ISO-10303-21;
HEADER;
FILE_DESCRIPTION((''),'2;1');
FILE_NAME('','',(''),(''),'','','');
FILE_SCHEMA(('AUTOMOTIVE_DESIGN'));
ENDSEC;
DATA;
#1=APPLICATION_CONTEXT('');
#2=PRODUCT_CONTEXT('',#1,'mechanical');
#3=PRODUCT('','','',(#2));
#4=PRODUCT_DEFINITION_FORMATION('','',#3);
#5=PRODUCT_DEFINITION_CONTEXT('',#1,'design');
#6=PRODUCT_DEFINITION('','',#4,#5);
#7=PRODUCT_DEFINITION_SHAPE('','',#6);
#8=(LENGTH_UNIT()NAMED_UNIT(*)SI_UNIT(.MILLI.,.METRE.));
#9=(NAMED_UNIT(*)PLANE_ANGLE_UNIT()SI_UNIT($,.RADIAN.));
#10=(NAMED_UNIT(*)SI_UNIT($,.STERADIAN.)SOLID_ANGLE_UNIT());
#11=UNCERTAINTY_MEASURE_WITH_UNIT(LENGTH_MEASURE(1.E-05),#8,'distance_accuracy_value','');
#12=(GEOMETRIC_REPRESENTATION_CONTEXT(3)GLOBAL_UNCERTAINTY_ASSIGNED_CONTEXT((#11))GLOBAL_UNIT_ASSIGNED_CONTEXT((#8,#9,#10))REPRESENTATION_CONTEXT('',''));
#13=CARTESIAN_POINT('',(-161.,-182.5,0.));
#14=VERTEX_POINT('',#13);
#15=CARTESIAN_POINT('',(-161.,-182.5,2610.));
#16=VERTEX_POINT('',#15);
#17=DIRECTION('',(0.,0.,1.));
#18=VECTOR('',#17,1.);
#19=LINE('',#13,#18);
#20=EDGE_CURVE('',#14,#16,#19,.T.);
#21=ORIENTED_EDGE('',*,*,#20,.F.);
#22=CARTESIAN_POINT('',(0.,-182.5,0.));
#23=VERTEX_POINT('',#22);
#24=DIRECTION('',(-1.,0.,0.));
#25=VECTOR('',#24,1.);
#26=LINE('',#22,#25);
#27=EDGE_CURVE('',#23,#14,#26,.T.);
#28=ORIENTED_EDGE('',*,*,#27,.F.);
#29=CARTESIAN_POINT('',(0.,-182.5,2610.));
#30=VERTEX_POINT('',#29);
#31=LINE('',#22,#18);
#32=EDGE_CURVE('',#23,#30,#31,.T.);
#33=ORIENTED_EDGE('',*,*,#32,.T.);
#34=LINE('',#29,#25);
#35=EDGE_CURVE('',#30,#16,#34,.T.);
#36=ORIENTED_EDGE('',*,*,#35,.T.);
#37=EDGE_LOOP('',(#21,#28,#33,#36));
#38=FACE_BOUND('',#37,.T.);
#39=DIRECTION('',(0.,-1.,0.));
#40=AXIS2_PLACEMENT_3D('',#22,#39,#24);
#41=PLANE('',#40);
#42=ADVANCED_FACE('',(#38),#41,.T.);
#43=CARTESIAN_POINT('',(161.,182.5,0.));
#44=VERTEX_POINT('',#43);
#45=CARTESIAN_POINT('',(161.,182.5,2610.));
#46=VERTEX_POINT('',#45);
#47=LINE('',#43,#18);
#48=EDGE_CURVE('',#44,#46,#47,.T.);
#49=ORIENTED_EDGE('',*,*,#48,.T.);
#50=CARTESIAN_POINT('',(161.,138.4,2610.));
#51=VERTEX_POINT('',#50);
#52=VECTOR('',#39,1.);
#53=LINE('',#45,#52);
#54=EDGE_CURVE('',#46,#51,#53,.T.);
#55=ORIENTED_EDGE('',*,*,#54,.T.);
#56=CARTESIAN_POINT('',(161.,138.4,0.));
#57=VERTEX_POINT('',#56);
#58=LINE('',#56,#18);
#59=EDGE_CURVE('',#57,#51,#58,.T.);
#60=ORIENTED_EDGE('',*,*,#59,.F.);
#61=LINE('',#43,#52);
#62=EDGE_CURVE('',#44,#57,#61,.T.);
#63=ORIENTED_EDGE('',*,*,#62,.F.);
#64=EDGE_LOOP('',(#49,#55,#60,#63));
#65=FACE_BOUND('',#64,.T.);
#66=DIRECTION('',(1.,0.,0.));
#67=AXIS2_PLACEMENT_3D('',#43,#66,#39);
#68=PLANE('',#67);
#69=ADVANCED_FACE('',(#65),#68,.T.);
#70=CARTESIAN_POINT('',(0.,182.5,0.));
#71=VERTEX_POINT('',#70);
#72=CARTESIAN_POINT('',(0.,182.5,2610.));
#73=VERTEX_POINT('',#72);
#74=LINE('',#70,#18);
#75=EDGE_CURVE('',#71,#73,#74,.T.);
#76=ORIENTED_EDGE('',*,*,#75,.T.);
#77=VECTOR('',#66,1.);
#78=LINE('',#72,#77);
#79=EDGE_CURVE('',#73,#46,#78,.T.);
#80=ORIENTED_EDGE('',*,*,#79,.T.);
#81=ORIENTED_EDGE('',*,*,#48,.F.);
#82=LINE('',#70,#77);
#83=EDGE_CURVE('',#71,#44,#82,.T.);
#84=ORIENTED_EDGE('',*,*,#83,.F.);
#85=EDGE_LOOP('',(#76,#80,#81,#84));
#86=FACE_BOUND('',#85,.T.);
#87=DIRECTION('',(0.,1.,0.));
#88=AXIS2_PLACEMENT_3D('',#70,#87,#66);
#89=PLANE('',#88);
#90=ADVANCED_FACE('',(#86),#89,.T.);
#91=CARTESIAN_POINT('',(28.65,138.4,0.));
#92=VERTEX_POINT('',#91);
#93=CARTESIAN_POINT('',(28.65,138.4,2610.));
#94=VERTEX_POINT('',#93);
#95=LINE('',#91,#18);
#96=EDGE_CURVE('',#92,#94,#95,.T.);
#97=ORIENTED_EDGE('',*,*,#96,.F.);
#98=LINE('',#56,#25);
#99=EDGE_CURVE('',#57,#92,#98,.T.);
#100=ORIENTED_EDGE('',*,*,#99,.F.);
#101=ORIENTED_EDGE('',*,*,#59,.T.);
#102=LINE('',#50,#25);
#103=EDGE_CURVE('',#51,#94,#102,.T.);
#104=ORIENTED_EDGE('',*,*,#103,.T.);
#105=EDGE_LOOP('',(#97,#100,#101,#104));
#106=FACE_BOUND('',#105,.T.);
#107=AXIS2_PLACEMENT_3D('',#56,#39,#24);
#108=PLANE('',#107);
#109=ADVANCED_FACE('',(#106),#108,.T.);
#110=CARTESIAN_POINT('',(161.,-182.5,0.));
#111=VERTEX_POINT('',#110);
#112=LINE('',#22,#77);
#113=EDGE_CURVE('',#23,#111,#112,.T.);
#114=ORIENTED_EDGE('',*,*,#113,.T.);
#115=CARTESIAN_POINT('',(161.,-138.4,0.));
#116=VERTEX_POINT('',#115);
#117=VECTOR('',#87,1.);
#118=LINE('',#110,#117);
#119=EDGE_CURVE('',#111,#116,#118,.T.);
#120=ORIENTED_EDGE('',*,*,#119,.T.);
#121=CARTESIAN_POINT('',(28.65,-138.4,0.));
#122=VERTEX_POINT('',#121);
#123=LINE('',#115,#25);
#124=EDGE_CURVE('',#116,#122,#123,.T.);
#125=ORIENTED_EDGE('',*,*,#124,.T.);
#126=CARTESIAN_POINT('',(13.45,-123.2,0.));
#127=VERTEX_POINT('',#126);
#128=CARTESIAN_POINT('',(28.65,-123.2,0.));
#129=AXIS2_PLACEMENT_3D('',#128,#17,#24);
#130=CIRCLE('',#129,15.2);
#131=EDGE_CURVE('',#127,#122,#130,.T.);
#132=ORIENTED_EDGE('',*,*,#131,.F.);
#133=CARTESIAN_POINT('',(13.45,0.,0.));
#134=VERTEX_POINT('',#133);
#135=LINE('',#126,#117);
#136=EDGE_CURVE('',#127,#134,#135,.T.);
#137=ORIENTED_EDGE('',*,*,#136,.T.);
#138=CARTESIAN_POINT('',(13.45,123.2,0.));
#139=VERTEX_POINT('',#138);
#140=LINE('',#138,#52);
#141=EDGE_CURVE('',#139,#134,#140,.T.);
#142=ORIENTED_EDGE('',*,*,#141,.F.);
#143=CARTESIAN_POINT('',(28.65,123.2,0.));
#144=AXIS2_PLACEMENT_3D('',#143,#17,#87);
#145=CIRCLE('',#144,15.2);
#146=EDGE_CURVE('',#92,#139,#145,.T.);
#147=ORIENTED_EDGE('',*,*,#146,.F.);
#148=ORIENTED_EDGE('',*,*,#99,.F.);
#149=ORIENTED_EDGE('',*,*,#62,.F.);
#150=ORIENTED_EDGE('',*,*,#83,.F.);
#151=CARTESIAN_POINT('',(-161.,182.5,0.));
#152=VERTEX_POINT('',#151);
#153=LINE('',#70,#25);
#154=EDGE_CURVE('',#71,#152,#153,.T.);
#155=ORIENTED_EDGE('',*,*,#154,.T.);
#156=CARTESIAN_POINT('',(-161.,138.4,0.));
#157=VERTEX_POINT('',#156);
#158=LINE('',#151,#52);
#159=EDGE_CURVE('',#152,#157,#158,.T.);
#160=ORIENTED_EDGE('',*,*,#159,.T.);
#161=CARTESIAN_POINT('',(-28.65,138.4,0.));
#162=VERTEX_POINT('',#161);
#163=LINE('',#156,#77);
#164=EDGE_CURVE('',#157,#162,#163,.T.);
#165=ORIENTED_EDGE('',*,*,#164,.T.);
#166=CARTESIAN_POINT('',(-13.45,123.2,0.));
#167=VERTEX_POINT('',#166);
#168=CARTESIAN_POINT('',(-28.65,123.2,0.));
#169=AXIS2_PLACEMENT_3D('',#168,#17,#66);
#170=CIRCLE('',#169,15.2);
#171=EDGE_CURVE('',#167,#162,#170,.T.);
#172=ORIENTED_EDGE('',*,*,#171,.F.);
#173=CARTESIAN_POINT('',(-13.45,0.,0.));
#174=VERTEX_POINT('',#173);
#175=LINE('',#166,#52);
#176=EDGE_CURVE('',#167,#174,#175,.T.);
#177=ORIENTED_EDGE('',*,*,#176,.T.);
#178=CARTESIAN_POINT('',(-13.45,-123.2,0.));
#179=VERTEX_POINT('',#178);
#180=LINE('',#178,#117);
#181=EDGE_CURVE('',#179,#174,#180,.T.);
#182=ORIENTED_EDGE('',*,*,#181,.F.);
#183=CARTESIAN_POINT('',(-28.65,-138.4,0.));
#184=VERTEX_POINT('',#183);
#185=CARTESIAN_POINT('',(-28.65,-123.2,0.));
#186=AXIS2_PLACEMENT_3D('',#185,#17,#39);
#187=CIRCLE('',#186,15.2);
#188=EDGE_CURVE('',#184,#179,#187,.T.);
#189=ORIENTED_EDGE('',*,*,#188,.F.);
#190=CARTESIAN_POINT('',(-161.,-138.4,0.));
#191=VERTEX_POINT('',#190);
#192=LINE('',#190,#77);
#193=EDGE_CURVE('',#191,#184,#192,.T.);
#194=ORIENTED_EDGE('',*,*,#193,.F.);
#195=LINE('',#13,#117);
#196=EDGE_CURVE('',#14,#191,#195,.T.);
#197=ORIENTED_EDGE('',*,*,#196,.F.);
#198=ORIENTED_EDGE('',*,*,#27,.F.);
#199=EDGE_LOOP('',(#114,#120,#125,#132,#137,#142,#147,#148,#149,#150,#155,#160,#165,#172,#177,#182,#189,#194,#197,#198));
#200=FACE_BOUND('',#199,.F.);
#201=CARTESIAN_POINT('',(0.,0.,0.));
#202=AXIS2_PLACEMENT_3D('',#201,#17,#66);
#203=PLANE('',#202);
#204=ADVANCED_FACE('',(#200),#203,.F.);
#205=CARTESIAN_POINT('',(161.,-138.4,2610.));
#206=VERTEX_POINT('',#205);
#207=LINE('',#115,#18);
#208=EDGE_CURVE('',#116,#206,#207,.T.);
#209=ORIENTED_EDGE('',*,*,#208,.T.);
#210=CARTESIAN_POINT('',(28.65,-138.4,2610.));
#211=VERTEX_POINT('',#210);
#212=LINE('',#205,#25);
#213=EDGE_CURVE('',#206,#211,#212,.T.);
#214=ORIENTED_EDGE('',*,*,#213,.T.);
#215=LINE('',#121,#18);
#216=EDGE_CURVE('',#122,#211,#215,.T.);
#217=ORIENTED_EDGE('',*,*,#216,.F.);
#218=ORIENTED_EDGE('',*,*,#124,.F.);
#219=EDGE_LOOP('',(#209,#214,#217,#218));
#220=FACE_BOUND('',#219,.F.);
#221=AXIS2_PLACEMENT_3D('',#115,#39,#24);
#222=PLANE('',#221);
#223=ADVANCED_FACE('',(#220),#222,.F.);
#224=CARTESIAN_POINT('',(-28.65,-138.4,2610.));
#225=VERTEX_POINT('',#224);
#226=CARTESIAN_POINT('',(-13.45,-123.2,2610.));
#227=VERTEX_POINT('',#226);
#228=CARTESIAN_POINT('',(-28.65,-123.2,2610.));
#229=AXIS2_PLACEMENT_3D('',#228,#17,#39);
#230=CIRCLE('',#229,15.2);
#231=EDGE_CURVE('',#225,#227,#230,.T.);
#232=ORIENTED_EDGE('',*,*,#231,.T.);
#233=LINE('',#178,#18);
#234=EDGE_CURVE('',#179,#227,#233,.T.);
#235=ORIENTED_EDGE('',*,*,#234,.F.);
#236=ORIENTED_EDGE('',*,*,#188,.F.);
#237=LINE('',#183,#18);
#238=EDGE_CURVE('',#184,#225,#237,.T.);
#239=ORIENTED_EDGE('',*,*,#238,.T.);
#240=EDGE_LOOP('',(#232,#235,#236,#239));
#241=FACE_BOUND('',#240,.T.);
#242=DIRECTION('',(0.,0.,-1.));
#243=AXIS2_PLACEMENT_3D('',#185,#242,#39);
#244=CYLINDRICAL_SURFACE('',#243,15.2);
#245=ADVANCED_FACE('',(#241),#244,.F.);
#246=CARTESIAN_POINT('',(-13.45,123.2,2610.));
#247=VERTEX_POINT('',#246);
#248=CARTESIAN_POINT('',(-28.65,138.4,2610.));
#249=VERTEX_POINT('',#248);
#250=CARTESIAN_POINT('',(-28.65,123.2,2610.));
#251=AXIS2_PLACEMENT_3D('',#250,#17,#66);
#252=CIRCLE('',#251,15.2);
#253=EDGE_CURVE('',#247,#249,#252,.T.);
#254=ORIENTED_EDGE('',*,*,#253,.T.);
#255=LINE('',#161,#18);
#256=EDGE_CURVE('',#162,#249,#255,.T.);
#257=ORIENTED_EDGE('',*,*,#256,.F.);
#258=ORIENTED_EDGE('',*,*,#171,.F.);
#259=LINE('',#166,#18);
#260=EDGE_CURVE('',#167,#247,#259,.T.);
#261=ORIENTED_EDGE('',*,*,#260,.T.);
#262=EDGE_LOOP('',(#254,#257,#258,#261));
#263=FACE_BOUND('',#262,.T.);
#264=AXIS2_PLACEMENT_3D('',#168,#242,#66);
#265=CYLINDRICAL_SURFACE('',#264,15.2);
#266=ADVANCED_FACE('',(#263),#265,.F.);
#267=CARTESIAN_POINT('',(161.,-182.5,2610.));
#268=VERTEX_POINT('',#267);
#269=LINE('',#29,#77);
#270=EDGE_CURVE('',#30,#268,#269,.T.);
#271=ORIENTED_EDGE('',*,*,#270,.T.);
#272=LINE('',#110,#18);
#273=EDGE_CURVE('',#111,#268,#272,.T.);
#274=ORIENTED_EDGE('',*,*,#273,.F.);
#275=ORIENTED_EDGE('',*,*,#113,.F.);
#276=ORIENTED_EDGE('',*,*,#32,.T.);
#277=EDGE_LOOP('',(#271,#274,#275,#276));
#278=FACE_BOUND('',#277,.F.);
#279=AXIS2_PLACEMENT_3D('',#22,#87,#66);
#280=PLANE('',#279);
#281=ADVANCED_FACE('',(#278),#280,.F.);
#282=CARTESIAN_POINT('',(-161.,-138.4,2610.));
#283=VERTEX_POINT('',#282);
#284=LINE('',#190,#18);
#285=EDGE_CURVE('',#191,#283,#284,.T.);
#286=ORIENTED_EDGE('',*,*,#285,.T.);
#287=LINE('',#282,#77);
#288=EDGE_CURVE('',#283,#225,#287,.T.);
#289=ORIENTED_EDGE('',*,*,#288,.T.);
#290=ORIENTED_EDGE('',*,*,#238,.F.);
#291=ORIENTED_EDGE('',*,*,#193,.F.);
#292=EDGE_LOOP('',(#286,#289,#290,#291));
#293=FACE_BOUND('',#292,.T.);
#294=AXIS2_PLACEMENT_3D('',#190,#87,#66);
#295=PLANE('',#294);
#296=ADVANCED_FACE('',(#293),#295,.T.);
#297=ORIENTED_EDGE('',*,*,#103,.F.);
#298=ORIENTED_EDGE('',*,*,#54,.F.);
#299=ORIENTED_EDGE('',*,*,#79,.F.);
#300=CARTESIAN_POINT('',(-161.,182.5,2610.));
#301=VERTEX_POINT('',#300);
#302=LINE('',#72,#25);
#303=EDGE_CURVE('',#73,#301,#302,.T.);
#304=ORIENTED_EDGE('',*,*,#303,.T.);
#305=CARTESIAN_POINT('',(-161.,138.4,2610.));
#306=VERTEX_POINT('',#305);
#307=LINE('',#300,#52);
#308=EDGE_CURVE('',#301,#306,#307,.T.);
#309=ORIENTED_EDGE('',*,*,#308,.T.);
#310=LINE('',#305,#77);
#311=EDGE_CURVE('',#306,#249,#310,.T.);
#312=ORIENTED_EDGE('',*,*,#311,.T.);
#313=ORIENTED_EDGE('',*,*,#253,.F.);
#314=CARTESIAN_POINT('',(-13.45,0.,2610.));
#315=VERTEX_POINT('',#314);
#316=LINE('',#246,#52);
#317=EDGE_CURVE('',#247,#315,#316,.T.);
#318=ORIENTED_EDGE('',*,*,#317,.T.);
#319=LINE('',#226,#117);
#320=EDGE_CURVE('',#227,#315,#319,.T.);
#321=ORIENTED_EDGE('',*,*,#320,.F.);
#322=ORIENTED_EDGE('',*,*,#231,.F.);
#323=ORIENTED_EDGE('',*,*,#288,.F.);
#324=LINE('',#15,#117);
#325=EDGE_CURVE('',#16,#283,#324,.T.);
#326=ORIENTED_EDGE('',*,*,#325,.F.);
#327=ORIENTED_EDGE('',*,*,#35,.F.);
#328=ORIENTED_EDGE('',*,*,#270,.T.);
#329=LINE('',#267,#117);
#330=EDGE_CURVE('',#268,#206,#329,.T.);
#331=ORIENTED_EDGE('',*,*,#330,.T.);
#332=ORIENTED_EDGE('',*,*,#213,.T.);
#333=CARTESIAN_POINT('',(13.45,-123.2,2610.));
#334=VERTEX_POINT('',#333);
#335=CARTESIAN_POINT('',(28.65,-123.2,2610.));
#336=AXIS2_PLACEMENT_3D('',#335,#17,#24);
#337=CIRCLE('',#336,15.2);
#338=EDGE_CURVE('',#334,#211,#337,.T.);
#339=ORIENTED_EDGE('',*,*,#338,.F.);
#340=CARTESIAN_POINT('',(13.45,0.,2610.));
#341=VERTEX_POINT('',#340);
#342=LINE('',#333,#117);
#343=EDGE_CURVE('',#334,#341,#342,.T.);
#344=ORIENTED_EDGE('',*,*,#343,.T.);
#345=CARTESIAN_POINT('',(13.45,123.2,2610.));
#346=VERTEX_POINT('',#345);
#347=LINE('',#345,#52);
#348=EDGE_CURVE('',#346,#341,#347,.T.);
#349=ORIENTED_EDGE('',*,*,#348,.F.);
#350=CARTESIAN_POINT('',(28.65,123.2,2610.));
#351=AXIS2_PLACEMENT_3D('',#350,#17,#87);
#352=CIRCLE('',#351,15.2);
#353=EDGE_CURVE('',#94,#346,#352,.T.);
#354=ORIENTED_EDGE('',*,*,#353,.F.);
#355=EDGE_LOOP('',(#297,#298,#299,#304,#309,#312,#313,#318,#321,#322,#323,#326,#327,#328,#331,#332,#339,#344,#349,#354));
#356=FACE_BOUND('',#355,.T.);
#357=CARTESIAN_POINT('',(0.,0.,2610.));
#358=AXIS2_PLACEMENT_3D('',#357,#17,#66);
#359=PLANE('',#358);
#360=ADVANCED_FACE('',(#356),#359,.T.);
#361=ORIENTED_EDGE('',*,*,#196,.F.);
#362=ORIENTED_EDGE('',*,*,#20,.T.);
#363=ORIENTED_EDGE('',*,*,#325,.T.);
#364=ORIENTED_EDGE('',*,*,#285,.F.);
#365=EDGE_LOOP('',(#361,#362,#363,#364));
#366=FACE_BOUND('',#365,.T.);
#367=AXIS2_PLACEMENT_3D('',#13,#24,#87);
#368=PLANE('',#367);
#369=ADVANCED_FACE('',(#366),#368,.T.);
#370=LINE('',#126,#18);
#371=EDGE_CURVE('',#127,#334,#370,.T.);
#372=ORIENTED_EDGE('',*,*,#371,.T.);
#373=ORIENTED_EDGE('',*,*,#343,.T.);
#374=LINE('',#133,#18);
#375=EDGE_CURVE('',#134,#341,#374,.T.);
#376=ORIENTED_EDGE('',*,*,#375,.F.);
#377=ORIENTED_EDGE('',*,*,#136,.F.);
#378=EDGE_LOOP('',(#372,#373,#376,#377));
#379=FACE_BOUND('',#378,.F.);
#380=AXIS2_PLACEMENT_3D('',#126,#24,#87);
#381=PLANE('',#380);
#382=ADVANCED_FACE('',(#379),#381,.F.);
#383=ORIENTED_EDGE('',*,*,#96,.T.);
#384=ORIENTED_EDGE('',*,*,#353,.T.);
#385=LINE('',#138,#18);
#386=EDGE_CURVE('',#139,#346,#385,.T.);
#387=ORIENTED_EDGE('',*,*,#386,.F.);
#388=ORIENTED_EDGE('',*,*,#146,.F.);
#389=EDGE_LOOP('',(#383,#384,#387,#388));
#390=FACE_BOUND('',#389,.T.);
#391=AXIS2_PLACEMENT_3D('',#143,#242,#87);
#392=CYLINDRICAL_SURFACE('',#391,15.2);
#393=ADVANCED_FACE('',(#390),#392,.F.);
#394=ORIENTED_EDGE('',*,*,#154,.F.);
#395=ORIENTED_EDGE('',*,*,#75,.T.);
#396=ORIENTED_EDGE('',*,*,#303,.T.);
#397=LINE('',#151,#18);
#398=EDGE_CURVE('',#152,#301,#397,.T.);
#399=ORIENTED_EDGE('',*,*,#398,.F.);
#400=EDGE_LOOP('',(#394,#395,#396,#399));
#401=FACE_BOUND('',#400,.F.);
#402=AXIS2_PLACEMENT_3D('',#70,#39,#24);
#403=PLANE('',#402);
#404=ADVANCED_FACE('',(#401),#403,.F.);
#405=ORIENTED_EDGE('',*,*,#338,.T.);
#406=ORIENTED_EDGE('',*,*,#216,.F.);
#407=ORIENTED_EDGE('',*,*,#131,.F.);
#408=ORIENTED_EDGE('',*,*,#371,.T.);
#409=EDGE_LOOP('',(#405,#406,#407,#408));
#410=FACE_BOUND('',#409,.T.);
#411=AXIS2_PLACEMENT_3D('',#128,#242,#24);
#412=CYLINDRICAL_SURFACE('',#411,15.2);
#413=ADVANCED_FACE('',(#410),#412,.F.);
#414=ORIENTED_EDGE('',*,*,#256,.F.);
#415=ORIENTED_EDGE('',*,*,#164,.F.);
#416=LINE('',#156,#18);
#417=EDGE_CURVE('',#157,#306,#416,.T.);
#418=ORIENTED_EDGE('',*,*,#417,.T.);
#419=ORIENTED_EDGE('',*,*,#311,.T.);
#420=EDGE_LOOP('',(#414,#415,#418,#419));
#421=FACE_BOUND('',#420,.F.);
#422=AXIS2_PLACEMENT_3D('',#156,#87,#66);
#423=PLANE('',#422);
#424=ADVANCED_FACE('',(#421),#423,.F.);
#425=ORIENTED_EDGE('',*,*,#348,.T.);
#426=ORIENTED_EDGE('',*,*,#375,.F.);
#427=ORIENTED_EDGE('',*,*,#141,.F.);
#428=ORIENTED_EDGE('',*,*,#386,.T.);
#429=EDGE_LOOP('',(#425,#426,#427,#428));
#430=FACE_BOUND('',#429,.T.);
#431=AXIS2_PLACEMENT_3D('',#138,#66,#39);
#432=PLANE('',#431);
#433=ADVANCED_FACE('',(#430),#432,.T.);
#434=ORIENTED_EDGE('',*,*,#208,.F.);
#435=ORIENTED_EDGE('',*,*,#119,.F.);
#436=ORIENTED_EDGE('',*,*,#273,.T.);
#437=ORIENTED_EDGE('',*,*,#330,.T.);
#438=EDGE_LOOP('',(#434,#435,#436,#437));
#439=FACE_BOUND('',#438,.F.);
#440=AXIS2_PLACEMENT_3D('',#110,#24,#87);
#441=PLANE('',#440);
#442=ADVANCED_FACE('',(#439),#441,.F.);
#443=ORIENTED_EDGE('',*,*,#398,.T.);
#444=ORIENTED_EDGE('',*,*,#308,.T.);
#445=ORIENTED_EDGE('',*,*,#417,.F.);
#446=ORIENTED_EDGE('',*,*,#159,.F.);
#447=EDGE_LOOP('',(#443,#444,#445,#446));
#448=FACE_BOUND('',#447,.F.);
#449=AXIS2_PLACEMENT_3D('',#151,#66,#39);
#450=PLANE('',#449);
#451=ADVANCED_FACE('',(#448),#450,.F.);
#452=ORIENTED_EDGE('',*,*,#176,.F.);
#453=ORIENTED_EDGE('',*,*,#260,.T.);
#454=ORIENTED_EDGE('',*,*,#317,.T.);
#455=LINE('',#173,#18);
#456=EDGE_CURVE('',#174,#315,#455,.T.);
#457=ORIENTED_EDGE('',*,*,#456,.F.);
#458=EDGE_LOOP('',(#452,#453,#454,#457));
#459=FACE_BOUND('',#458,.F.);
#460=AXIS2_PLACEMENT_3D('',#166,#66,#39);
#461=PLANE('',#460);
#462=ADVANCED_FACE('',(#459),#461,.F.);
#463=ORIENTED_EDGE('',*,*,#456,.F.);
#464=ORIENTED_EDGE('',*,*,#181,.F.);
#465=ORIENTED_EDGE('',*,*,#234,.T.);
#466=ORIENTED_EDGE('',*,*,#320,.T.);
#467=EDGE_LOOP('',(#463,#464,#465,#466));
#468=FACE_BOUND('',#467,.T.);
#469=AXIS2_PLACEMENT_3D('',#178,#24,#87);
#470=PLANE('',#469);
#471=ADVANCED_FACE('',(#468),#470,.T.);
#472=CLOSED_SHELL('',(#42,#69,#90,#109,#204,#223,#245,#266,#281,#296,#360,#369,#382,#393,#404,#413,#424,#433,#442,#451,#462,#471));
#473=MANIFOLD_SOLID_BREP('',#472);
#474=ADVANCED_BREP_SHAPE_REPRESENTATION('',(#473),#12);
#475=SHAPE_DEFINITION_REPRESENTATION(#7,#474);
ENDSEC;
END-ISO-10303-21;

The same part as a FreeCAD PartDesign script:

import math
import FreeCAD as App
import Part
import Sketcher

doc = App.newDocument("Part")
body = doc.addObject("PartDesign::Body", "Body")

# Sketch on XY plane
sketch1 = body.newObject("Sketcher::SketchObject", "Sketch")
sketch1.AttachmentSupport = (doc.getObject("XY_Plane"), [""])
sketch1.MapMode = "FlatFace"
sketch1.addGeometry(Part.LineSegment(App.Vector(-161, -138, 0), App.Vector(-161, -182, 0)), False)
sketch1.addGeometry(Part.LineSegment(App.Vector(-161, -182, 0), App.Vector(161, -182, 0)), False)
sketch1.addGeometry(Part.LineSegment(App.Vector(161, -182, 0), App.Vector(161, -138, 0)), False)
sketch1.addGeometry(Part.LineSegment(App.Vector(161, -138, 0), App.Vector(29, -138, 0)), False)
sketch1.addGeometry(Part.ArcOfCircle(Part.Circle(App.Vector(29, -123, 0), App.Vector(0, 0, 1), 15), math.radians(180), math.radians(270)), False)
sketch1.addGeometry(Part.LineSegment(App.Vector(13, -123, 0), App.Vector(13, 123, 0)), False)
sketch1.addGeometry(Part.ArcOfCircle(Part.Circle(App.Vector(29, 123, 0), App.Vector(0, 0, 1), 15), math.radians(90), math.radians(180)), False)
sketch1.addGeometry(Part.LineSegment(App.Vector(29, 138, 0), App.Vector(161, 138, 0)), False)
sketch1.addGeometry(Part.LineSegment(App.Vector(161, 138, 0), App.Vector(161, 182, 0)), False)
sketch1.addGeometry(Part.LineSegment(App.Vector(161, 182, 0), App.Vector(-161, 182, 0)), False)
sketch1.addGeometry(Part.LineSegment(App.Vector(-161, 182, 0), App.Vector(-161, 138, 0)), False)
sketch1.addGeometry(Part.LineSegment(App.Vector(-161, 138, 0), App.Vector(-29, 138, 0)), False)
sketch1.addGeometry(Part.ArcOfCircle(Part.Circle(App.Vector(-29, 123, 0), App.Vector(0, 0, 1), 15), math.radians(0), math.radians(90)), False)
sketch1.addGeometry(Part.LineSegment(App.Vector(-13, 123, 0), App.Vector(-13, -123, 0)), False)
sketch1.addGeometry(Part.ArcOfCircle(Part.Circle(App.Vector(-29, -123, 0), App.Vector(0, 0, 1), 15), math.radians(-90), math.radians(0)), False)
sketch1.addGeometry(Part.LineSegment(App.Vector(-29, -138, 0), App.Vector(-161, -138, 0)), False)
sketch1.addConstraint(Sketcher.Constraint("Coincident", 0, 2, 1, 1))
sketch1.addConstraint(Sketcher.Constraint("Coincident", 1, 2, 2, 1))
sketch1.addConstraint(Sketcher.Constraint("Coincident", 2, 2, 3, 1))
sketch1.addConstraint(Sketcher.Constraint("Tangent", 3, 2, 4, 2))
sketch1.addConstraint(Sketcher.Constraint("Tangent", 4, 1, 5, 1))
sketch1.addConstraint(Sketcher.Constraint("Tangent", 5, 2, 6, 2))
sketch1.addConstraint(Sketcher.Constraint("Tangent", 6, 1, 7, 1))
sketch1.addConstraint(Sketcher.Constraint("Coincident", 7, 2, 8, 1))
sketch1.addConstraint(Sketcher.Constraint("Coincident", 8, 2, 9, 1))
sketch1.addConstraint(Sketcher.Constraint("Coincident", 9, 2, 10, 1))
sketch1.addConstraint(Sketcher.Constraint("Coincident", 10, 2, 11, 1))
sketch1.addConstraint(Sketcher.Constraint("Tangent", 11, 2, 12, 2))
sketch1.addConstraint(Sketcher.Constraint("Tangent", 12, 1, 13, 1))
sketch1.addConstraint(Sketcher.Constraint("Tangent", 13, 2, 14, 2))
sketch1.addConstraint(Sketcher.Constraint("Tangent", 14, 1, 15, 1))
sketch1.addConstraint(Sketcher.Constraint("Coincident", 15, 2, 0, 1))
sketch1.addConstraint(Sketcher.Constraint("Vertical", 0))
sketch1.addConstraint(Sketcher.Constraint("Horizontal", 1))
sketch1.addConstraint(Sketcher.Constraint("Vertical", 2))
sketch1.addConstraint(Sketcher.Constraint("Horizontal", 3))
sketch1.addConstraint(Sketcher.Constraint("Vertical", 5))
sketch1.addConstraint(Sketcher.Constraint("Horizontal", 7))
sketch1.addConstraint(Sketcher.Constraint("Vertical", 8))
sketch1.addConstraint(Sketcher.Constraint("Horizontal", 9))
sketch1.addConstraint(Sketcher.Constraint("Vertical", 10))
sketch1.addConstraint(Sketcher.Constraint("Horizontal", 11))
sketch1.addConstraint(Sketcher.Constraint("Vertical", 13))
sketch1.addConstraint(Sketcher.Constraint("Horizontal", 15))
sketch1.addConstraint(Sketcher.Constraint("Equal", 4, 6))
sketch1.addConstraint(Sketcher.Constraint("Equal", 6, 12))
sketch1.addConstraint(Sketcher.Constraint("Equal", 12, 14))
sketch1.addConstraint(Sketcher.Constraint("Symmetric", 4, 3, 12, 3, -1, 1))
sketch1.addConstraint(Sketcher.Constraint("Symmetric", 0, 2, 8, 2, -1, 1))
sketch1.addConstraint(Sketcher.Constraint("Symmetric", 7, 2, 10, 2, -2))
sketch1.addConstraint(Sketcher.Constraint("Symmetric", 2, 2, 15, 2, -2))
sketch1.addConstraint(Sketcher.Constraint("Radius", 4, 15.2))
sketch1.addConstraint(Sketcher.Constraint("DistanceY", 0, 2, 0, 1, 44.1))
sketch1.addConstraint(Sketcher.Constraint("DistanceX", 0, 2, -1, 1, 161.0))
sketch1.addConstraint(Sketcher.Constraint("DistanceY", 0, 2, -1, 1, 182.5))
sketch1.addConstraint(Sketcher.Constraint("DistanceX", -1, 1, 4, 1, 13.45))
pad1 = body.newObject("PartDesign::Pad", "Pad")
pad1.Profile = sketch1
pad1.Length = 2610

doc.recompute()
